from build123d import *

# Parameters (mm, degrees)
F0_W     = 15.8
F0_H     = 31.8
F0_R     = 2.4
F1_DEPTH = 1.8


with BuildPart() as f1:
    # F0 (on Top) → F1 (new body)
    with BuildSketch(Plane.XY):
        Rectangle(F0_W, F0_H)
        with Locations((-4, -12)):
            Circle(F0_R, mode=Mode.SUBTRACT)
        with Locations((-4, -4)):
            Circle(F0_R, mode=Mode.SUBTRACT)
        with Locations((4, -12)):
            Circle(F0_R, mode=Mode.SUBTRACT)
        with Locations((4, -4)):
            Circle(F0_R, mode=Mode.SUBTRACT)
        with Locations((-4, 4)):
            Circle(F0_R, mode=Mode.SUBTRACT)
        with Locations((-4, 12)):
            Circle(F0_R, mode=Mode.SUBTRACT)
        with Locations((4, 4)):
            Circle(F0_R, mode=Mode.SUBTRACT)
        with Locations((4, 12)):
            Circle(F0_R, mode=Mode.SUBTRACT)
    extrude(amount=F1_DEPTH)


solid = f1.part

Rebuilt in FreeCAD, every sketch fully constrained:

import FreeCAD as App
import Part
import Sketcher
from FreeCAD import Vector


def add_polygon(sketch, points):
    """Adds a closed chain of lines whose ends are joined by coincident constraints."""
    first, n = sketch.GeometryCount, len(points)
    for a, b in zip(points, points[1:] + points[:1]):
        sketch.addGeometry(Part.LineSegment(App.Vector(*a, 0), App.Vector(*b, 0)), False)
    for i in range(n):
        sketch.addConstraint(Sketcher.Constraint("Coincident", first + i, 2, first + (i + 1) % n, 1))

doc = App.newDocument("Part")
body = doc.addObject("PartDesign::Body", "Body")

sketch1 = body.newObject("Sketcher::SketchObject", "Sketch")
sketch1.AttachmentSupport = (doc.getObject("XY_Plane"), [""])
sketch1.MapMode = "FlatFace"
add_polygon(sketch1, [(-7.9, 15.9), (-7.9, -15.9), (7.9, -15.9), (7.9, 15.9)])
sketch1.addGeometry(Part.Circle(Vector(-4, -12, 0), Vector(0, 0, 1), 2.4), False)
sketch1.addGeometry(Part.Circle(Vector(-4, -4, 0), Vector(0, 0, 1), 2.4), False)
sketch1.addGeometry(Part.Circle(Vector(4, -12, 0), Vector(0, 0, 1), 2.4), False)
sketch1.addGeometry(Part.Circle(Vector(4, -4, 0), Vector(0, 0, 1), 2.4), False)
sketch1.addGeometry(Part.Circle(Vector(-4, 4, 0), Vector(0, 0, 1), 2.4), False)
sketch1.addGeometry(Part.Circle(Vector(-4, 12, 0), Vector(0, 0, 1), 2.4), False)
sketch1.addGeometry(Part.Circle(Vector(4, 4, 0), Vector(0, 0, 1), 2.4), False)
sketch1.addGeometry(Part.Circle(Vector(4, 12, 0), Vector(0, 0, 1), 2.4), False)
sketch1.addConstraint(Sketcher.Constraint("Vertical", 0))
sketch1.addConstraint(Sketcher.Constraint("Horizontal", 1))
sketch1.addConstraint(Sketcher.Constraint("Vertical", 2))
sketch1.addConstraint(Sketcher.Constraint("Horizontal", 3))
sketch1.addConstraint(Sketcher.Constraint("Equal", 4, 5))
sketch1.addConstraint(Sketcher.Constraint("Equal", 5, 6))
sketch1.addConstraint(Sketcher.Constraint("Equal", 6, 7))
sketch1.addConstraint(Sketcher.Constraint("Equal", 7, 8))
sketch1.addConstraint(Sketcher.Constraint("Equal", 8, 9))
sketch1.addConstraint(Sketcher.Constraint("Equal", 9, 10))
sketch1.addConstraint(Sketcher.Constraint("Equal", 10, 11))
sketch1.addConstraint(Sketcher.Constraint("Symmetric", 7, 3, 8, 3, -1, 1))
sketch1.addConstraint(Sketcher.Constraint("Symmetric", 6, 3, 9, 3, -1, 1))
sketch1.addConstraint(Sketcher.Constraint("Symmetric", 5, 3, 10, 3, -1, 1))
sketch1.addConstraint(Sketcher.Constraint("Symmetric", 4, 3, 11, 3, -1, 1))
sketch1.addConstraint(Sketcher.Constraint("Symmetric", 0, 2, 2, 2, -1, 1))
sketch1.addConstraint(Sketcher.Constraint("Symmetric", 4, 3, 6, 3, -2))
sketch1.addConstraint(Sketcher.Constraint("Symmetric", 5, 3, 7, 3, -2))
sketch1.addConstraint(Sketcher.Constraint("Vertical", 4, 3, 5, 3))
sketch1.addConstraint(Sketcher.Constraint("Diameter", 4, 4.8))
sketch1.addConstraint(Sketcher.Constraint("DistanceX", 1, 1, 1, 2, 15.8))
sketch1.addConstraint(Sketcher.Constraint("DistanceY", 0, 2, 0, 1, 31.8))
sketch1.addConstraint(Sketcher.Constraint("DistanceX", 4, 3, -1, 1, 4.0))
sketch1.addConstraint(Sketcher.Constraint("DistanceY", 4, 3, -1, 1, 12.0))
sketch1.addConstraint(Sketcher.Constraint("DistanceY", 5, 3, -1, 1, 4.0))
pad1 = body.newObject("PartDesign::Pad", "Pad")
pad1.Profile = sketch1
pad1.Length = 1.8

doc.recompute()
